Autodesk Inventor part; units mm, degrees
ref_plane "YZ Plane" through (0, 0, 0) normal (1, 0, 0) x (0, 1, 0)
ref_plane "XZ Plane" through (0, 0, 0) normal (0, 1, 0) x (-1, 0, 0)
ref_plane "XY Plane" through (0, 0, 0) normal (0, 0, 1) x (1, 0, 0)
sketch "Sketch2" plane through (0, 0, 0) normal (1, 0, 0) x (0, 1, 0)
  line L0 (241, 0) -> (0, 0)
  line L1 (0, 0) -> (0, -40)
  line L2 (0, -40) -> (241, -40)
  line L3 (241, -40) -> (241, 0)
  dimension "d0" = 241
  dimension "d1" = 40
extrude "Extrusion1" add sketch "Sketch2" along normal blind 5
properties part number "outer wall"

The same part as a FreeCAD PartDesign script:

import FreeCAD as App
import Part
import Sketcher
Q = App.Units.Quantity


def add_polygon(sketch, points):
    """Adds a closed chain of lines whose ends are joined by coincident constraints."""
    first, n = sketch.GeometryCount, len(points)
    for a, b in zip(points, points[1:] + points[:1]):
        sketch.addGeometry(Part.LineSegment(App.Vector(*a, 0), App.Vector(*b, 0)), False)
    for i in range(n):
        sketch.addConstraint(Sketcher.Constraint("Coincident", first + i, 2, first + (i + 1) % n, 1))

doc = App.newDocument("Part")
body = doc.addObject("PartDesign::Body", "Body")

sketch1 = body.newObject("Sketcher::SketchObject", "Sketch")
sketch1.AttachmentSupport = (doc.getObject("YZ_Plane"), [""])
sketch1.MapMode = "FlatFace"
add_polygon(sketch1, [(241, -40), (241, 0), (0, 0), (0, -40)])
sketch1.addConstraint(Sketcher.Constraint("Vertical", 0))
sketch1.addConstraint(Sketcher.Constraint("Horizontal", 1))
sketch1.addConstraint(Sketcher.Constraint("Vertical", 2))
sketch1.addConstraint(Sketcher.Constraint("Horizontal", 3))
sketch1.addConstraint(Sketcher.Constraint("Coincident", 1, 2, -1, 1))
sketch1.addConstraint(Sketcher.Constraint("DistanceX", 1, 2, 1, 1, Q("241 mm")))
sketch1.addConstraint(Sketcher.Constraint("DistanceY", 0, 1, 0, 2, Q("40 mm")))
pad1 = body.newObject("PartDesign::Pad", "Pad")
pad1.Profile = sketch1
pad1.Length = 5

doc.recompute()
